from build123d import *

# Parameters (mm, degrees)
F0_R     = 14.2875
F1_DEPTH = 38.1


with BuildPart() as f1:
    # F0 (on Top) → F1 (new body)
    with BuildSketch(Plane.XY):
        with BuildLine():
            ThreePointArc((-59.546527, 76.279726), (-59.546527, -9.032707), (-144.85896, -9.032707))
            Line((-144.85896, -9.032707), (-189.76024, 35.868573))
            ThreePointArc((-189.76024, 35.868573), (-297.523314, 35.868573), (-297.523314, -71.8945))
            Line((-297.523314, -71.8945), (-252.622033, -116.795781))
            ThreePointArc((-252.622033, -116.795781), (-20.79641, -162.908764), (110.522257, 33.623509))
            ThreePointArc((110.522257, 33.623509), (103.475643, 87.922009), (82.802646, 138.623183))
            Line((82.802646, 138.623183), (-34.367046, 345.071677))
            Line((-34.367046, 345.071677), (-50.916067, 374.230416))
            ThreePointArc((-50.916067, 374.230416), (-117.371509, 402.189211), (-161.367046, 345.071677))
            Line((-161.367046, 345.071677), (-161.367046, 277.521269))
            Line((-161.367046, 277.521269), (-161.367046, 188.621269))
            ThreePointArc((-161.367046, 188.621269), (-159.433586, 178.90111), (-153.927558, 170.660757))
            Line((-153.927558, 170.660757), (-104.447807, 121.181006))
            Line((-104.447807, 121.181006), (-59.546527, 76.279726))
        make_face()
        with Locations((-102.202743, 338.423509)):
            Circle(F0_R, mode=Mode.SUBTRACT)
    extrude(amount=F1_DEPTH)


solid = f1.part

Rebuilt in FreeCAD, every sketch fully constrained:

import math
import FreeCAD as App
import Part
import Sketcher

V = App.Vector
Q = App.Units.Quantity

doc = App.newDocument("Part")
body = doc.addObject("PartDesign::Body", "Body")

sketch1 = body.newObject("Sketcher::SketchObject", "Sketch")
sketch1.AttachmentSupport = (doc.getObject("XY_Plane"), [""])
sketch1.MapMode = "FlatFace"
sketch1.addGeometry([
    Part.ArcOfCircle(Part.Circle(V(-102, 34, 0), V(0, 0, 1), 60), math.radians(-135), math.radians(45)),
    Part.LineSegment(V(-145, -9, 0), V(-190, 36, 0)),
    Part.ArcOfCircle(Part.Circle(V(-244, -18, 0), V(0, 0, 1), 76), math.radians(45), math.radians(225)),
    Part.LineSegment(V(-298, -72, 0), V(-253, -117, 0)),
    Part.ArcOfCircle(Part.Circle(V(-102, 34, 0), V(0, 0, 1), 213), math.radians(-135), math.radians(0)),
    Part.ArcOfCircle(Part.Circle(V(-102, 34, 0), V(0, 0, 1), 213), math.radians(0), math.radians(30)),
    Part.LineSegment(V(83, 139, 0), V(-34, 345, 0)),
    Part.LineSegment(V(-34, 345, 0), V(-51, 374, 0)),
    Part.ArcOfCircle(Part.Circle(V(-102, 345, 0), V(0, 0, 1), 59), math.radians(30), math.radians(180)),
    Part.LineSegment(V(-161, 345, 0), V(-161, 189, 0)),
    Part.ArcOfCircle(Part.Circle(V(-136, 189, 0), V(0, 0, 1), 25), math.radians(-180), math.radians(-135)),
    Part.LineSegment(V(-154, 171, 0), V(-60, 76, 0)),
    Part.Circle(V(-102, 338, 0), V(0, 0, 1), 14),
], False)
sketch1.addConstraint([
    Sketcher.Constraint("Tangent", 0, 1, 1, 1),
    Sketcher.Constraint("Tangent", 1, 2, 2, 1),
    Sketcher.Constraint("Tangent", 2, 2, 3, 1),
    Sketcher.Constraint("Tangent", 3, 2, 4, 1),
    Sketcher.Constraint("Tangent", 4, 2, 5, 1),
    Sketcher.Constraint("Tangent", 5, 2, 6, 1),
    Sketcher.Constraint("Coincident", 6, 2, 7, 1),
    Sketcher.Constraint("Tangent", 7, 2, 8, 1),
    Sketcher.Constraint("Tangent", 8, 2, 9, 1),
    Sketcher.Constraint("Tangent", 9, 2, 10, 1),
    Sketcher.Constraint("Tangent", 10, 2, 11, 1),
    Sketcher.Constraint("Tangent", 11, 2, 0, 2),
    Sketcher.Constraint("Vertical", 9),
    Sketcher.Constraint("Coincident", 4, 3, 0, 3),
    Sketcher.Constraint("Equal", 4, 5),
    Sketcher.Constraint("Parallel", 1, 3),
    Sketcher.Constraint("Parallel", 6, 7),
    Sketcher.Constraint("Parallel", 3, 11),
    Sketcher.Constraint("Horizontal", 5, 3, 4, 2),
    Sketcher.Constraint("Horizontal", 8, 3, 6, 2),
    Sketcher.Constraint("Vertical", 5, 3, 12, 3),
    Sketcher.Constraint("Radius", 2, Q("3 in")),
    Sketcher.Constraint("Radius", 10, Q("1 in")),
    Sketcher.Constraint("Diameter", 12, Q("1.125 in")),
    Sketcher.Constraint("Angle", 1, Q("135 deg")),
    Sketcher.Constraint("Radius", 0, Q("2.375 in")),
    Sketcher.Constraint("DistanceY", 4, 3, 12, 3, Q("12 in")),
    Sketcher.Constraint("DistanceX", 10, 3, 6, 2, Q("4 in")),
    Sketcher.Constraint("Distance", 1, Q("2.5 in")),
    Sketcher.Constraint("Radius", 8, 59.074401),
    Sketcher.Constraint("DistanceY", 9, 2, 9, 1, 156.450408),
    Sketcher.Constraint("DistanceY", 2, 2, -1, 1, 71.8945),
    Sketcher.Constraint("DistanceX", 0, 1, -1, 1, 144.85896),
])
pad1 = body.newObject("PartDesign::Pad", "Pad")
pad1.Profile = sketch1
pad1.Length = Q("1.5 in")

doc.recompute()
